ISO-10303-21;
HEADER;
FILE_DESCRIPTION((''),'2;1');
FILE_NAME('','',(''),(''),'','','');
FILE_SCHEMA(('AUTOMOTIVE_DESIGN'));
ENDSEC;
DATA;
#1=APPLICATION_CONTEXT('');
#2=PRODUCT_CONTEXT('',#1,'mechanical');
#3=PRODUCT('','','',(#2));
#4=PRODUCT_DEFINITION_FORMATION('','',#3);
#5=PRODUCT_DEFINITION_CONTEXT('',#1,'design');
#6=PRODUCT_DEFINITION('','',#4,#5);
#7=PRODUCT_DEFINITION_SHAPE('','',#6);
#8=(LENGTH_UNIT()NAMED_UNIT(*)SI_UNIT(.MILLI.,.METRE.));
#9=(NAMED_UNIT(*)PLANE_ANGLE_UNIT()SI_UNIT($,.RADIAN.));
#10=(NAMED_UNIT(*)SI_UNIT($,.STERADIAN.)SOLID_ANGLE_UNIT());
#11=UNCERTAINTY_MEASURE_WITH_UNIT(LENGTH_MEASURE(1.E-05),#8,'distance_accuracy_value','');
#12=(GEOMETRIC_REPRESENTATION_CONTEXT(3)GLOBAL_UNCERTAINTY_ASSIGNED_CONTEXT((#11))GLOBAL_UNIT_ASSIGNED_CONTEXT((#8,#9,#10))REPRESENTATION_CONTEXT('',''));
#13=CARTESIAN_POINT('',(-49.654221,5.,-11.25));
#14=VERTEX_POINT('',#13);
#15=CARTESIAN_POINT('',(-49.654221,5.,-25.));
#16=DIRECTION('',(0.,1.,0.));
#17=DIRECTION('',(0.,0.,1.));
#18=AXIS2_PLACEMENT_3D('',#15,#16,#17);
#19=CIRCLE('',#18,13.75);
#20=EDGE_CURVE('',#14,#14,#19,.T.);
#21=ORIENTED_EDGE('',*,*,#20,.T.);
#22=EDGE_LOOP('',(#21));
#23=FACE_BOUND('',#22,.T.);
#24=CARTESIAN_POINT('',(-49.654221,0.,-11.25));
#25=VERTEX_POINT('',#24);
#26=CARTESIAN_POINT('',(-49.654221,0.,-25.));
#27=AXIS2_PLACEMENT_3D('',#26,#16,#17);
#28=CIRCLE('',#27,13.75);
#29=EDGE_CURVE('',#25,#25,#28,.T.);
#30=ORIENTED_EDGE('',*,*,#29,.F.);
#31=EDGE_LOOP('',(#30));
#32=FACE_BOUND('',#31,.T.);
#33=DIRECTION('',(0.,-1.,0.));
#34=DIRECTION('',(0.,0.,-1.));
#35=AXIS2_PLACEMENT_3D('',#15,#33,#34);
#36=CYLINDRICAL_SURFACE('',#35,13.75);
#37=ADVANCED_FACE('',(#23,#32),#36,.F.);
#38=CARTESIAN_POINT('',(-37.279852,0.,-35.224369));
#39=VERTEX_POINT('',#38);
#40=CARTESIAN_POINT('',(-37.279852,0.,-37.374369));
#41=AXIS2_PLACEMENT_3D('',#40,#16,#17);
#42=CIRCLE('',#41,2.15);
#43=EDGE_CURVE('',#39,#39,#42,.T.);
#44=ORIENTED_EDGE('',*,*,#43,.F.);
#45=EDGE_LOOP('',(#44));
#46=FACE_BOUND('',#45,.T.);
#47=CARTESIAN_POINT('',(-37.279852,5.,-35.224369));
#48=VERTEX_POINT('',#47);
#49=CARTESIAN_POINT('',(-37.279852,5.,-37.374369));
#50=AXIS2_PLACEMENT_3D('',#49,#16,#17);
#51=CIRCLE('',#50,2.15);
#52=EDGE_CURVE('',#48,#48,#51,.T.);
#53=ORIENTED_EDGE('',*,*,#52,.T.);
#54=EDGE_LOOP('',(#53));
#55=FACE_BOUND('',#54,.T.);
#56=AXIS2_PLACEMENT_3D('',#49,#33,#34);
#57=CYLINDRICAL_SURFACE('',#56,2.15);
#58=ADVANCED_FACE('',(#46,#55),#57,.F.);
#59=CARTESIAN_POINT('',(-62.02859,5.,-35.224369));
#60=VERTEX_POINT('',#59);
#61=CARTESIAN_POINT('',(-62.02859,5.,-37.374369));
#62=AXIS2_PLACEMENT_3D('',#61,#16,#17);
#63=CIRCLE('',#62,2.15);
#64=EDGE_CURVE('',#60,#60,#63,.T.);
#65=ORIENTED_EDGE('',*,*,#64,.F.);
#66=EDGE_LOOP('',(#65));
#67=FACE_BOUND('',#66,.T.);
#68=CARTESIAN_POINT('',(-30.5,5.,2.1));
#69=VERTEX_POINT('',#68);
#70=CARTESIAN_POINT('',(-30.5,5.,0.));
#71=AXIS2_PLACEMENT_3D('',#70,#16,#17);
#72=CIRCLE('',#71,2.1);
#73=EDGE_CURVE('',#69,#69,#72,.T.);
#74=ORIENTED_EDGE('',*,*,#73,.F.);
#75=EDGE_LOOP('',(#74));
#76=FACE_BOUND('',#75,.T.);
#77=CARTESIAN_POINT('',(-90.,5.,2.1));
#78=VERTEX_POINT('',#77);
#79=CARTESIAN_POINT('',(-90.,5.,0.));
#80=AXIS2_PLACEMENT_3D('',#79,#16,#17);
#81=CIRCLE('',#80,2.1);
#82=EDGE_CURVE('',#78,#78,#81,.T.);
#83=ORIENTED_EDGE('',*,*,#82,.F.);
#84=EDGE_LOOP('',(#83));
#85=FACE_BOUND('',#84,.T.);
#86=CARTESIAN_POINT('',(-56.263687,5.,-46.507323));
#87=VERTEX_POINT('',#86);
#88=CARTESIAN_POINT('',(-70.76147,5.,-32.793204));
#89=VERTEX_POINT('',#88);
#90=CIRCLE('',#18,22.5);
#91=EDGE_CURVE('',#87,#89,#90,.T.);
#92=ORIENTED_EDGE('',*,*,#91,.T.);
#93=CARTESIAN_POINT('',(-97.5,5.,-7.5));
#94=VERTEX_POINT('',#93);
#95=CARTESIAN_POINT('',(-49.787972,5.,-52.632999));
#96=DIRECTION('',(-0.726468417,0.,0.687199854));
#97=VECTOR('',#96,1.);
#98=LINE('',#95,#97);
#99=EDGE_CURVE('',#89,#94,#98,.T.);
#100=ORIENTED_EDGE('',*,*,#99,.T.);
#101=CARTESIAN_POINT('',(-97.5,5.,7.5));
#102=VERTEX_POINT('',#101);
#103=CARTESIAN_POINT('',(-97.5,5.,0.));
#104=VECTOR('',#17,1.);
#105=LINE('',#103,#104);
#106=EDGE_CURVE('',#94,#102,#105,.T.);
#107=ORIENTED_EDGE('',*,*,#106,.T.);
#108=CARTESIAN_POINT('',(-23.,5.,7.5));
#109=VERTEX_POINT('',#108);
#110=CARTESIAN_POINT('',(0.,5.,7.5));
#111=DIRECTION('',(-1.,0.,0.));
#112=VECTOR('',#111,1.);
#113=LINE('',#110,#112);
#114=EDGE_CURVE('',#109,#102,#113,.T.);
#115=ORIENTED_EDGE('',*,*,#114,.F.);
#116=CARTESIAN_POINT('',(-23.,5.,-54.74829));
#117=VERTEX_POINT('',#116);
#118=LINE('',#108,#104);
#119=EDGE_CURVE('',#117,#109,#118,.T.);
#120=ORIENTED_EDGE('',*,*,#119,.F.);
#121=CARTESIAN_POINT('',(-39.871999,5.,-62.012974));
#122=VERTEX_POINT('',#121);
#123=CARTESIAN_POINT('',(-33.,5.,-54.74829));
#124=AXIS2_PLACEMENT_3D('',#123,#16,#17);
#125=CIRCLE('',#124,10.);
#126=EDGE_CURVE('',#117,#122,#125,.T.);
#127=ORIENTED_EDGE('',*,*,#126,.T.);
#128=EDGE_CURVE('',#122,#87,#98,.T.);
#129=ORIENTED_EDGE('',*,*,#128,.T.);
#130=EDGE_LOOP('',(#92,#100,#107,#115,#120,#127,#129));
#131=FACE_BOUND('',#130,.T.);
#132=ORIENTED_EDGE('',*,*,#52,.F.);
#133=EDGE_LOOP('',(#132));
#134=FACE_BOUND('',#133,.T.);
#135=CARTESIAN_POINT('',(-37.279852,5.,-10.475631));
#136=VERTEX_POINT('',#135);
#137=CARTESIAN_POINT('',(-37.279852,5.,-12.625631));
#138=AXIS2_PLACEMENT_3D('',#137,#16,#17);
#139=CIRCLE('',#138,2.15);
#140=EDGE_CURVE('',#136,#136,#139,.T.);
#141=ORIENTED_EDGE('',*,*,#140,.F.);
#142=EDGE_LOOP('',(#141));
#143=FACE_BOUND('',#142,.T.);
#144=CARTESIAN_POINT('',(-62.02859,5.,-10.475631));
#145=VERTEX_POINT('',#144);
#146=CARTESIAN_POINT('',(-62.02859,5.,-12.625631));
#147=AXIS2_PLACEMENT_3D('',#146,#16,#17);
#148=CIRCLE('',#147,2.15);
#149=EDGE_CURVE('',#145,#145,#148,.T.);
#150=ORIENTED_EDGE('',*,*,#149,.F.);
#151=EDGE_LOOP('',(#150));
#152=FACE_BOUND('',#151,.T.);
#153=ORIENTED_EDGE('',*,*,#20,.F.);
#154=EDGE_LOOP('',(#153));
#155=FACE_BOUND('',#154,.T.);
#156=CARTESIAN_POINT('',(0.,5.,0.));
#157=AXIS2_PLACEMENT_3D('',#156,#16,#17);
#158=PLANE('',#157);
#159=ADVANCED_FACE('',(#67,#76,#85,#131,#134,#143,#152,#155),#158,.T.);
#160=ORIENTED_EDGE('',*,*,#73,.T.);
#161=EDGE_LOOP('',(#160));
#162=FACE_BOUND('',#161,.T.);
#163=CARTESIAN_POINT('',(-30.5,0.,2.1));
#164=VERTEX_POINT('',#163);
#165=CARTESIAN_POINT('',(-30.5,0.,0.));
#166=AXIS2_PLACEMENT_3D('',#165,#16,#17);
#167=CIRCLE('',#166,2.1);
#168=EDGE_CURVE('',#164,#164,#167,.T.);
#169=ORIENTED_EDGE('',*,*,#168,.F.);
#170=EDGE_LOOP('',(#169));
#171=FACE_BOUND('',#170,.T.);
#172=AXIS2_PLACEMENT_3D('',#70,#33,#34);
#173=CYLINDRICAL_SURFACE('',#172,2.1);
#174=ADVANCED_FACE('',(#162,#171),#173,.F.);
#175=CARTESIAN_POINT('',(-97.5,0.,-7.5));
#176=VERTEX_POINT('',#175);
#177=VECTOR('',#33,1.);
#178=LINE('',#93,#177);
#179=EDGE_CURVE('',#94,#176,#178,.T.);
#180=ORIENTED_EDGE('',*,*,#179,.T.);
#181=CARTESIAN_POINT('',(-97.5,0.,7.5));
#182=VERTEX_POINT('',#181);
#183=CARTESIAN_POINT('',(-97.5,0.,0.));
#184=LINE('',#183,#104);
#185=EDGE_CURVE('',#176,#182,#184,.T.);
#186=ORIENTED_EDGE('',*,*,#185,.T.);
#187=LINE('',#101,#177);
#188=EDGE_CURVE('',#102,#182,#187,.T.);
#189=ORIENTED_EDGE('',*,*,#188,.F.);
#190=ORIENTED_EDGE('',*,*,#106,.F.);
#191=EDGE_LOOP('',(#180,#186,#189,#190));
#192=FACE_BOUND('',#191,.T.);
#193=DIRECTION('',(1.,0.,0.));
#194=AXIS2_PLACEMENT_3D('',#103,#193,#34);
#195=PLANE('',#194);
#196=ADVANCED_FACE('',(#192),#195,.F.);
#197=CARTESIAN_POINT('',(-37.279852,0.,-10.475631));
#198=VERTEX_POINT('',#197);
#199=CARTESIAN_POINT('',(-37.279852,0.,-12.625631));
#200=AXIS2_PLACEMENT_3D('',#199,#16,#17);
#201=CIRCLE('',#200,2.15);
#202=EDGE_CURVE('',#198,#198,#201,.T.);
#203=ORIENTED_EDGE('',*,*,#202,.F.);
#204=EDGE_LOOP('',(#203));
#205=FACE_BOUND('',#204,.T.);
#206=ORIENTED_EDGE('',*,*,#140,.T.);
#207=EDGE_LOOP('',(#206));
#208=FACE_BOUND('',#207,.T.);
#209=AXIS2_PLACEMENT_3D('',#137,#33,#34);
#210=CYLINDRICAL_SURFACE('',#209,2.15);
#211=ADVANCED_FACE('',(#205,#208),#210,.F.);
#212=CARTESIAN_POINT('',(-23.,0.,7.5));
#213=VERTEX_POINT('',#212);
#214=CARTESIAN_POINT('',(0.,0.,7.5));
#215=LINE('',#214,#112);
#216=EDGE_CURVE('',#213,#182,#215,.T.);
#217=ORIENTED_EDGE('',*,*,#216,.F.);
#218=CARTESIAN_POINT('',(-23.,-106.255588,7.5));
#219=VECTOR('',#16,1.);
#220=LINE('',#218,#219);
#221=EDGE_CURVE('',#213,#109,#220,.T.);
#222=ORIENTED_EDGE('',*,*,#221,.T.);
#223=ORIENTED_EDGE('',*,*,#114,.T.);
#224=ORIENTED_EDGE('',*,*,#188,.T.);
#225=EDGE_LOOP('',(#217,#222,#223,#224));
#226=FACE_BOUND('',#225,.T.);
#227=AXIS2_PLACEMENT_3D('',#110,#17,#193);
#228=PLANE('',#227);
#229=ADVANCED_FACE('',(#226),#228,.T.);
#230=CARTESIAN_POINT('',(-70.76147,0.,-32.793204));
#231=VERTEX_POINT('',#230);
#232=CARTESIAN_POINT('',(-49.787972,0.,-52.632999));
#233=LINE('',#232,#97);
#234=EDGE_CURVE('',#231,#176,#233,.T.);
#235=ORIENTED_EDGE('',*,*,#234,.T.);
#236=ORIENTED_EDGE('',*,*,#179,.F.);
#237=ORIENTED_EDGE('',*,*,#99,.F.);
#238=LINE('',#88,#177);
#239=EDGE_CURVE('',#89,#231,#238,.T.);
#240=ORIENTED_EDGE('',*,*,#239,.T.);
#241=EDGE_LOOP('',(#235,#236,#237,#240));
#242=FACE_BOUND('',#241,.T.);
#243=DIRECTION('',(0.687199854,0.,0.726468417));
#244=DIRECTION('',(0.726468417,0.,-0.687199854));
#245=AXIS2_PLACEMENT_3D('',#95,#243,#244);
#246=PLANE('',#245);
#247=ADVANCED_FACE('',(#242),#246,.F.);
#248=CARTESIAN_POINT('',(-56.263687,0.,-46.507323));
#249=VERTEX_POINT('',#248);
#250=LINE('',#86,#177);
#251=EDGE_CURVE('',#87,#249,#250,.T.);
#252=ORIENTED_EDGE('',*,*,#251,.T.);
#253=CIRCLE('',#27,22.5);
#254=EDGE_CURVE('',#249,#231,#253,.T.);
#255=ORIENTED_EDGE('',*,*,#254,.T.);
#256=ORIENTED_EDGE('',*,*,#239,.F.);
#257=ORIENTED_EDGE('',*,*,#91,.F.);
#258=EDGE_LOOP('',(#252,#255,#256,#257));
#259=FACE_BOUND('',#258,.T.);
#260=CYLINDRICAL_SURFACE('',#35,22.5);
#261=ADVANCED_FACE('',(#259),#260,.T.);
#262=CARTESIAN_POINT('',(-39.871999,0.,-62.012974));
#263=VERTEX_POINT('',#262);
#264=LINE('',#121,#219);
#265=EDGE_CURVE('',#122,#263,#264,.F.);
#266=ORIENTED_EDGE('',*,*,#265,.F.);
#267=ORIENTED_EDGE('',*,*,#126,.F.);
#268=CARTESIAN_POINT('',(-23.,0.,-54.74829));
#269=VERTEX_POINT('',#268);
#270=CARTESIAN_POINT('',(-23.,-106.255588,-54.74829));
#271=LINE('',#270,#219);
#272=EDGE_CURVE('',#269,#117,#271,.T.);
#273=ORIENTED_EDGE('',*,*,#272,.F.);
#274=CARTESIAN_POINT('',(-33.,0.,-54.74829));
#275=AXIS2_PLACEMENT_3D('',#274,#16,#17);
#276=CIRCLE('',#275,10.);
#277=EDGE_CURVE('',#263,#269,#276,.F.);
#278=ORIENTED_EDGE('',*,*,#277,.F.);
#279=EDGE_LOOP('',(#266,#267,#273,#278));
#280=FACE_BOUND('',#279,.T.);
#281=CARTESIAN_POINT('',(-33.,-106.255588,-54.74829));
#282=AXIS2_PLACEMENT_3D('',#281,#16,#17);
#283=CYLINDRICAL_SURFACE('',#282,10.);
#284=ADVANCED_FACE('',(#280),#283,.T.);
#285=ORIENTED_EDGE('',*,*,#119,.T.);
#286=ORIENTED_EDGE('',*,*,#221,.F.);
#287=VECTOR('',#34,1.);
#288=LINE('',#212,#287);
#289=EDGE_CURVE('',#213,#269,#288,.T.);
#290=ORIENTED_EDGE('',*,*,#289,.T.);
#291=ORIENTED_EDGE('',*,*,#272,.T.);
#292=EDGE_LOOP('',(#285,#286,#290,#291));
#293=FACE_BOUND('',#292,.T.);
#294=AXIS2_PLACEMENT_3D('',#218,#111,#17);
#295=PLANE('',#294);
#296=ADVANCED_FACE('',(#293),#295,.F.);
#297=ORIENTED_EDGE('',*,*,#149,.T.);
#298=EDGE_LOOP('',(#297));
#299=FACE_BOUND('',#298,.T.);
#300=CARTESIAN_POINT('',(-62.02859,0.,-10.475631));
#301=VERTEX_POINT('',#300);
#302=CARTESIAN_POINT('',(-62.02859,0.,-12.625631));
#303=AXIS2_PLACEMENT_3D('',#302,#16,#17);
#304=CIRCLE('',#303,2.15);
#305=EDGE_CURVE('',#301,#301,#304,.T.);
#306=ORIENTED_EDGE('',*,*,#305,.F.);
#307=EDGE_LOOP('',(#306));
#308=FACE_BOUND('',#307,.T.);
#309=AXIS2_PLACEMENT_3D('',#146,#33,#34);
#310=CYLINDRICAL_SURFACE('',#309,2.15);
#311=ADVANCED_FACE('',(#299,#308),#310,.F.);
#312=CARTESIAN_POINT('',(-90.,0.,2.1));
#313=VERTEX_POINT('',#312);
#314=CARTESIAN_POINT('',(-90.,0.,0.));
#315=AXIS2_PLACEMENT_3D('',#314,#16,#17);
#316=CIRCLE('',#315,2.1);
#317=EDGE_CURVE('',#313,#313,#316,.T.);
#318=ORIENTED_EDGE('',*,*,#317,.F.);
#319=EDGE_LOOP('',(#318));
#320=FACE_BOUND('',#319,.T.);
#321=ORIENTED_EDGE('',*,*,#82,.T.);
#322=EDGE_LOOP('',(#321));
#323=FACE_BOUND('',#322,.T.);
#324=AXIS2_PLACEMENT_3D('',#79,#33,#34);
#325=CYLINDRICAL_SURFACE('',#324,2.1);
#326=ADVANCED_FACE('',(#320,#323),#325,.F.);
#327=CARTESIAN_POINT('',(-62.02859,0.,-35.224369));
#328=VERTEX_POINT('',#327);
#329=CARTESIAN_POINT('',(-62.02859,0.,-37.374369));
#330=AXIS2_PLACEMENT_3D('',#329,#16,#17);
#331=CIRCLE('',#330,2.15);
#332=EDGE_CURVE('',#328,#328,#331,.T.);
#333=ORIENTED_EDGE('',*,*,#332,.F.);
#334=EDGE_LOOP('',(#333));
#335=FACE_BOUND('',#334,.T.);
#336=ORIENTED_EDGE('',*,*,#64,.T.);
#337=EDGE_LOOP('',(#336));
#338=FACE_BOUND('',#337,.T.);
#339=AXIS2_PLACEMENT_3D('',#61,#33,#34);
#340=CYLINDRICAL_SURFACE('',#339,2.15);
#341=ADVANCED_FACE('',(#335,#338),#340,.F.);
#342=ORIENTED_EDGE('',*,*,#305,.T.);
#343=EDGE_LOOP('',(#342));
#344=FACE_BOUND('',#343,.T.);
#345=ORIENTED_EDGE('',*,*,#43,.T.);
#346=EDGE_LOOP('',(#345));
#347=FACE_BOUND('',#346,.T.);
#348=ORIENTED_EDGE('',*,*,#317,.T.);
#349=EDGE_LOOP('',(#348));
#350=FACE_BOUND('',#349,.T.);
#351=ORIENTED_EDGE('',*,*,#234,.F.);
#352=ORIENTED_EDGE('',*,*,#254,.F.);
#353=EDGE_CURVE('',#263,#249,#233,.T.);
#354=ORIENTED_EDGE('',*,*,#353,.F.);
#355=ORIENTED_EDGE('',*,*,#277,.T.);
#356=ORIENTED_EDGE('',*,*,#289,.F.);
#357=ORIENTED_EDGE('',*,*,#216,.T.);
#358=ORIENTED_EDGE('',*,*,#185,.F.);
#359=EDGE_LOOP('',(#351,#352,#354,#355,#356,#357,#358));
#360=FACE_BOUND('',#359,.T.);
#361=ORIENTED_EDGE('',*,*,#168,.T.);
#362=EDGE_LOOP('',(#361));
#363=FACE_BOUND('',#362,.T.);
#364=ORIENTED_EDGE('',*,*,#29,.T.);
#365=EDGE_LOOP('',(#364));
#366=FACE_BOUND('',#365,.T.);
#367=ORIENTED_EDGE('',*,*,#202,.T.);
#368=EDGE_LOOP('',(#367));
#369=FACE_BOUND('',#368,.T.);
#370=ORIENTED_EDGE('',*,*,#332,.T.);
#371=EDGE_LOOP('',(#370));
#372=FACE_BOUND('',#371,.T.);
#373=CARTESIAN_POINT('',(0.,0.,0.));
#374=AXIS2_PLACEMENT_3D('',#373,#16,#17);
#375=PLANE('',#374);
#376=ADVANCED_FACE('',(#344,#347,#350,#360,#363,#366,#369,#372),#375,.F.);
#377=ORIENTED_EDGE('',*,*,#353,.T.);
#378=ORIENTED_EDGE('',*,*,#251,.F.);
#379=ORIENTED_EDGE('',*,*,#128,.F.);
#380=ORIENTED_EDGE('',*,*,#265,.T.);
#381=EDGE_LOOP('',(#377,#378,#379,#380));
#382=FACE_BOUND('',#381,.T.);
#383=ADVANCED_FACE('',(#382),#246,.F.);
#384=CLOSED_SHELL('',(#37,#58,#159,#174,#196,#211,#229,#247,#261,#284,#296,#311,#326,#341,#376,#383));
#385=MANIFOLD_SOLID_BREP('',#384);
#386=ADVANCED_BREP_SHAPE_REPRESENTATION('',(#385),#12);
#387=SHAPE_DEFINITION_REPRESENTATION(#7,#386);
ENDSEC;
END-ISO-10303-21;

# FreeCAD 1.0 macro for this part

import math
import FreeCAD as App
import Part
import Sketcher

V = App.Vector


def edges_at(feature, points):
    """Names of the edges that pass closest to the given points."""
    edges = feature.Shape.Edges
    near = lambda p: min(range(len(edges)), key=lambda i: edges[i].distToShape(Part.Vertex(*p))[0])
    return sorted({f"Edge{near(p) + 1}" for p in points})

doc = App.newDocument("Part")
body = doc.addObject("PartDesign::Body", "Body")

# Sketch on XZ plane
sketch1 = body.newObject("Sketcher::SketchObject", "Sketch")
sketch1.AttachmentSupport = (doc.getObject("XZ_Plane"), [""])
sketch1.MapMode = "FlatFace"
sketch1.addGeometry(Part.LineSegment(V(5, 7.5, 0), V(5, -95, 0)), False)
sketch1.addGeometry(Part.LineSegment(V(5, -95, 0), V(-5, -95, 0)), False)
sketch1.addGeometry(Part.LineSegment(V(-5, -95, 0), V(-56.3, -46.5, 0)), False)
sketch1.addGeometry(Part.ArcOfCircle(Part.Circle(V(-49.7, -25, 0), V(0, 0, 1), 22.5), math.radians(-160), math.radians(-107)), False)
sketch1.addGeometry(Part.LineSegment(V(-70.8, -32.8, 0), V(-97.5, -7.5, 0)), False)
sketch1.addGeometry(Part.LineSegment(V(-97.5, -7.5, 0), V(-97.5, 7.5, 0)), False)
sketch1.addGeometry(Part.LineSegment(V(-97.5, 7.5, 0), V(5, 7.5, 0)), False)
sketch1.addGeometry(Part.Circle(V(-90, 0, 0), V(0, 0, 1), 2.1), False)
sketch1.addGeometry(Part.Circle(V(-62, -12.6, 0), V(0, 0, 1), 2.1), False)
sketch1.addGeometry(Part.Circle(V(-49.7, -25, 0), V(0, 0, 1), 13.8), False)
sketch1.addGeometry(Part.Circle(V(-62, -37.4, 0), V(0, 0, 1), 2.1), False)
sketch1.addGeometry(Part.Circle(V(-30.5, 0, 0), V(0, 0, 1), 2.1), False)
sketch1.addGeometry(Part.Circle(V(-37.3, -12.6, 0), V(0, 0, 1), 2.1), False)
sketch1.addGeometry(Part.Circle(V(0, 0, 0), V(0, 0, 1), 2.1), False)
sketch1.addGeometry(Part.Circle(V(-37.3, -37.4, 0), V(0, 0, 1), 2.1), False)
sketch1.addGeometry(Part.Circle(V(0, -90, 0), V(0, 0, 1), 2.1), False)
sketch1.addConstraint(Sketcher.Constraint("Coincident", 0, 2, 1, 1))
sketch1.addConstraint(Sketcher.Constraint("Coincident", 1, 2, 2, 1))
sketch1.addConstraint(Sketcher.Constraint("Coincident", 2, 2, 3, 2))
sketch1.addConstraint(Sketcher.Constraint("Coincident", 3, 1, 4, 1))
sketch1.addConstraint(Sketcher.Constraint("Coincident", 4, 2, 5, 1))
sketch1.addConstraint(Sketcher.Constraint("Coincident", 5, 2, 6, 1))
sketch1.addConstraint(Sketcher.Constraint("Coincident", 6, 2, 0, 1))
sketch1.addConstraint(Sketcher.Constraint("Vertical", 0))
sketch1.addConstraint(Sketcher.Constraint("Horizontal", 1))
sketch1.addConstraint(Sketcher.Constraint("Vertical", 5))
sketch1.addConstraint(Sketcher.Constraint("Horizontal", 6))
sketch1.addConstraint(Sketcher.Constraint("Coincident", 13, 3, -1, 1))
sketch1.addConstraint(Sketcher.Constraint("Coincident", 9, 3, 3, 3))
sketch1.addConstraint(Sketcher.Constraint("Equal", 8, 10))
sketch1.addConstraint(Sketcher.Constraint("Equal", 7, 11))
sketch1.addConstraint(Sketcher.Constraint("Equal", 10, 12))
sketch1.addConstraint(Sketcher.Constraint("Equal", 11, 13))
sketch1.addConstraint(Sketcher.Constraint("Equal", 12, 14))
sketch1.addConstraint(Sketcher.Constraint("Equal", 14, 15))
sketch1.addConstraint(Sketcher.Constraint("PointOnObject", 7, 3, -1))
sketch1.addConstraint(Sketcher.Constraint("PointOnObject", 11, 3, -1))
sketch1.addConstraint(Sketcher.Constraint("PointOnObject", 15, 3, -2))
sketch1.addConstraint(Sketcher.Constraint("Parallel", 2, 4))
sketch1.addConstraint(Sketcher.Constraint("Horizontal", 8, 3, 12, 3))
sketch1.addConstraint(Sketcher.Constraint("Horizontal", 10, 3, 14, 3))
sketch1.addConstraint(Sketcher.Constraint("Vertical", 8, 3, 10, 3))
sketch1.addConstraint(Sketcher.Constraint("Vertical", 12, 3, 14, 3))
sketch1.addConstraint(Sketcher.Constraint("Equal", 6, 0))
sketch1.addConstraint(Sketcher.Constraint("Diameter", 7, 4.2))
sketch1.addConstraint(Sketcher.Constraint("Diameter", 8, 4.3))
sketch1.addConstraint(Sketcher.Constraint("Diameter", 9, 27.5))
sketch1.addConstraint(Sketcher.Constraint("Radius", 3, 22.5))
sketch1.addConstraint(Sketcher.Constraint("DistanceX", 1, 2, 1, 1, 10.0))
sketch1.addConstraint(Sketcher.Constraint("DistanceY", 5, 1, 5, 2, 15.0))
sketch1.addConstraint(Sketcher.Constraint("DistanceX", 6, 1, 6, 2, 102.5))
sketch1.addConstraint(Sketcher.Constraint("DistanceY", 3, 3, -1, 1, 25.0))
sketch1.addConstraint(Sketcher.Constraint("DistanceX", 7, 3, -1, 1, 90.0))
sketch1.addConstraint(Sketcher.Constraint("DistanceY", 15, 3, -1, 1, 90.0))
sketch1.addConstraint(Sketcher.Constraint("DistanceX", -1, 1, 0, 2, 5.0))
sketch1.addConstraint(Sketcher.Constraint("DistanceY", 0, 2, -1, 1, 95.0))
sketch1.addConstraint(Sketcher.Constraint("DistanceX", 11, 3, -1, 1, 30.5))
sketch1.addConstraint(Sketcher.Constraint("Distance", 2, 70.565609))
sketch1.addConstraint(Sketcher.Constraint("DistanceX", 3, 3, -1, 1, 49.654221))
sketch1.addConstraint(Sketcher.Constraint("DistanceX", 8, 3, -1, 1, 62.02859))
sketch1.addConstraint(Sketcher.Constraint("DistanceY", 8, 3, -1, 1, 12.625631))
sketch1.addConstraint(Sketcher.Constraint("DistanceY", 10, 3, -1, 1, 37.374369))
sketch1.addConstraint(Sketcher.Constraint("DistanceX", 9, 3, 12, 3, 12.374369))
pad1 = body.newObject("PartDesign::Pad", "Pad")
pad1.Profile = sketch1
pad1.Length = 5
pad1.Reversed = True

# Sketch on XZ plane
sketch2 = body.newObject("Sketcher::SketchObject", "Sketch001")
sketch2.AttachmentSupport = (doc.getObject("XZ_Plane"), [""])
sketch2.MapMode = "FlatFace"
sketch2.AttachmentOffset = App.Placement(V(0, 0, -5), App.Rotation())
sketch2.addGeometry(Part.LineSegment(V(-23, -78, 0), V(-23, 8, 0)), False)
sketch2.addGeometry(Part.LineSegment(V(-23, 8, 0), V(5, 8, 0)), False)
sketch2.addGeometry(Part.LineSegment(V(5, 8, 0), V(5, -95, 0)), False)
sketch2.addGeometry(Part.LineSegment(V(5, -95, 0), V(-5, -95, 0)), False)
sketch2.addGeometry(Part.LineSegment(V(-5, -95, 0), V(-23, -78, 0)), False)
sketch2.addConstraint(Sketcher.Constraint("Coincident", 0, 2, 1, 1))
sketch2.addConstraint(Sketcher.Constraint("Coincident", 1, 2, 2, 1))
sketch2.addConstraint(Sketcher.Constraint("Coincident", 2, 2, 3, 1))
sketch2.addConstraint(Sketcher.Constraint("Coincident", 3, 2, 4, 1))
sketch2.addConstraint(Sketcher.Constraint("Coincident", 4, 2, 0, 1))
sketch2.addConstraint(Sketcher.Constraint("Vertical", 0))
sketch2.addConstraint(Sketcher.Constraint("Horizontal", 1))
sketch2.addConstraint(Sketcher.Constraint("Vertical", 2))
sketch2.addConstraint(Sketcher.Constraint("Horizontal", 3))
sketch2.addConstraint(Sketcher.Constraint("DistanceX", 1, 1, 1, 2, 28.0))
sketch2.addConstraint(Sketcher.Constraint("DistanceX", 3, 2, 3, 1, 10.0))
sketch2.addConstraint(Sketcher.Constraint("DistanceY", 2, 2, 2, 1, 102.5))
sketch2.addConstraint(Sketcher.Constraint("DistanceX", 0, 2, -1, 1, 23.0))
sketch2.addConstraint(Sketcher.Constraint("DistanceY", 2, 2, -1, 1, 95.0))
sketch2.addConstraint(Sketcher.Constraint("Distance", 4, 24.777402))
pocket1 = body.newObject("PartDesign::Pocket", "Pocket")
pocket1.Profile = sketch2
pocket1.Length = 5
pocket1.Reversed = True
doc.recompute()

fillet = body.newObject("PartDesign::Fillet", "Fillet")
fillet.Base = (pocket1, edges_at(pocket1, [(-23, 2.5, -77.973)]))
fillet.Radius = 10

doc.recompute()
